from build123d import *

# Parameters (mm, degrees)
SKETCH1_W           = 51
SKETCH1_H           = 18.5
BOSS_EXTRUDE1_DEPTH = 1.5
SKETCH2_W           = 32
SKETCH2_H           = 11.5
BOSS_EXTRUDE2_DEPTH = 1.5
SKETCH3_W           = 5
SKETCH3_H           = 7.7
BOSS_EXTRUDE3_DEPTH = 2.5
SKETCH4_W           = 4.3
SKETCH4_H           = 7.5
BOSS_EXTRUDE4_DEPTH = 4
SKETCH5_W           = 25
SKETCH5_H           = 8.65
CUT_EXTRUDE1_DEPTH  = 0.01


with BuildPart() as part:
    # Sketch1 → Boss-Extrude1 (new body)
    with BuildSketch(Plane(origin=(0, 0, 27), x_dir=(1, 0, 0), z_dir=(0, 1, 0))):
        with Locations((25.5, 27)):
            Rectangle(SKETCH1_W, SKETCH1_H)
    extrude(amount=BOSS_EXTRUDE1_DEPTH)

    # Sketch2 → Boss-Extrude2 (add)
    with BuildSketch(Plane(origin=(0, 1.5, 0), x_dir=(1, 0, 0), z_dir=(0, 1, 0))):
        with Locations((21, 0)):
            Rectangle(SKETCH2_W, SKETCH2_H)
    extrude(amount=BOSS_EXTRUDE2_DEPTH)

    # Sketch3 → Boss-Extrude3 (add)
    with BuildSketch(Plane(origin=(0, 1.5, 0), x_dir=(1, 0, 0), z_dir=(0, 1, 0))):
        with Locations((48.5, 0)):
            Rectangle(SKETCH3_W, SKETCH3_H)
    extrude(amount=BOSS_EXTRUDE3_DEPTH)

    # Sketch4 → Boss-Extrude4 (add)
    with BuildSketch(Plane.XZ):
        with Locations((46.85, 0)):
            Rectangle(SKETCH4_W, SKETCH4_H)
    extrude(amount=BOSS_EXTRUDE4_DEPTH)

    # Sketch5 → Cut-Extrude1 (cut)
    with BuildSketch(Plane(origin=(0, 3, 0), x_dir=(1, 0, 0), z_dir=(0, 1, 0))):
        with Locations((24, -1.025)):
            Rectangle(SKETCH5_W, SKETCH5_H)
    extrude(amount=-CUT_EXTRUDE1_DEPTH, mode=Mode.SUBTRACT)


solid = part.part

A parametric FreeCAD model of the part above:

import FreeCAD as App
import Part
import Sketcher

doc = App.newDocument("Part")
body = doc.addObject("PartDesign::Body", "Body")

sketch1 = body.newObject("Sketcher::SketchObject", "Sketch")
sketch1.AttachmentSupport = (doc.getObject("XZ_Plane"), [""])
sketch1.MapMode = "FlatFace"
sketch1.addGeometry([
    Part.LineSegment(App.Vector(0, -9, 0), App.Vector(0, 9, 0)),
    Part.LineSegment(App.Vector(0, 9, 0), App.Vector(51, 9, 0)),
    Part.LineSegment(App.Vector(51, 9, 0), App.Vector(51, -9, 0)),
    Part.LineSegment(App.Vector(51, -9, 0), App.Vector(0, -9, 0)),
], False)
sketch1.addConstraint([
    Sketcher.Constraint("Coincident", 0, 2, 1, 1),
    Sketcher.Constraint("Coincident", 1, 2, 2, 1),
    Sketcher.Constraint("Coincident", 2, 2, 3, 1),
    Sketcher.Constraint("Coincident", 3, 2, 0, 1),
    Sketcher.Constraint("Vertical", 0),
    Sketcher.Constraint("Horizontal", 1),
    Sketcher.Constraint("Vertical", 2),
    Sketcher.Constraint("Horizontal", 3),
    Sketcher.Constraint("Symmetric", 0, 2, 3, 2, -1, 1),
    Sketcher.Constraint("DistanceX", 1, 1, 1, 2, 51.0),
    Sketcher.Constraint("DistanceY", 0, 1, 0, 2, 18.5),
])
pad1 = body.newObject("PartDesign::Pad", "Pad")
pad1.Profile = sketch1
pad1.Length = 1.5
pad1.Reversed = True

sketch2 = body.newObject("Sketcher::SketchObject", "Sketch001")
sketch2.AttachmentSupport = (doc.getObject("XZ_Plane"), [""])
sketch2.MapMode = "FlatFace"
sketch2.AttachmentOffset = App.Placement(App.Vector(0, 0, -1.5), App.Rotation())
sketch2.addGeometry([
    Part.LineSegment(App.Vector(5, -6, 0), App.Vector(5, 6, 0)),
    Part.LineSegment(App.Vector(5, 6, 0), App.Vector(37, 6, 0)),
    Part.LineSegment(App.Vector(37, 6, 0), App.Vector(37, -6, 0)),
    Part.LineSegment(App.Vector(37, -6, 0), App.Vector(5, -6, 0)),
], False)
sketch2.addConstraint([
    Sketcher.Constraint("Coincident", 0, 2, 1, 1),
    Sketcher.Constraint("Coincident", 1, 2, 2, 1),
    Sketcher.Constraint("Coincident", 2, 2, 3, 1),
    Sketcher.Constraint("Coincident", 3, 2, 0, 1),
    Sketcher.Constraint("Vertical", 0),
    Sketcher.Constraint("Horizontal", 1),
    Sketcher.Constraint("Vertical", 2),
    Sketcher.Constraint("Horizontal", 3),
    Sketcher.Constraint("DistanceX", 1, 1, 1, 2, 32.0),
    Sketcher.Constraint("DistanceY", 0, 1, 0, 2, 11.5),
    Sketcher.Constraint("DistanceX", -1, 1, 0, 2, 5.0),
    Sketcher.Constraint("DistanceY", -1, 1, 0, 2, 5.75),
])
pad2 = body.newObject("PartDesign::Pad", "Pad001")
pad2.Profile = sketch2
pad2.Length = 1.5
pad2.Reversed = True

sketch3 = body.newObject("Sketcher::SketchObject", "Sketch002")
sketch3.AttachmentSupport = (doc.getObject("XZ_Plane"), [""])
sketch3.MapMode = "FlatFace"
sketch3.AttachmentOffset = App.Placement(App.Vector(0, 0, -1.5), App.Rotation())
sketch3.addGeometry([
    Part.LineSegment(App.Vector(46, -4, 0), App.Vector(46, 4, 0)),
    Part.LineSegment(App.Vector(46, 4, 0), App.Vector(51, 4, 0)),
    Part.LineSegment(App.Vector(51, 4, 0), App.Vector(51, -4, 0)),
    Part.LineSegment(App.Vector(51, -4, 0), App.Vector(46, -4, 0)),
], False)
sketch3.addConstraint([
    Sketcher.Constraint("Coincident", 0, 2, 1, 1),
    Sketcher.Constraint("Coincident", 1, 2, 2, 1),
    Sketcher.Constraint("Coincident", 2, 2, 3, 1),
    Sketcher.Constraint("Coincident", 3, 2, 0, 1),
    Sketcher.Constraint("Vertical", 0),
    Sketcher.Constraint("Horizontal", 1),
    Sketcher.Constraint("Vertical", 2),
    Sketcher.Constraint("Horizontal", 3),
    Sketcher.Constraint("DistanceX", 1, 1, 1, 2, 5.0),
    Sketcher.Constraint("DistanceY", 0, 1, 0, 2, 7.7),
    Sketcher.Constraint("DistanceX", -1, 1, 0, 2, 46.0),
    Sketcher.Constraint("DistanceY", -1, 1, 0, 2, 3.85),
])
pad3 = body.newObject("PartDesign::Pad", "Pad002")
pad3.Profile = sketch3
pad3.Length = 2.5
pad3.Reversed = True

sketch4 = body.newObject("Sketcher::SketchObject", "Sketch003")
sketch4.AttachmentSupport = (doc.getObject("XZ_Plane"), [""])
sketch4.MapMode = "FlatFace"
sketch4.addGeometry([
    Part.LineSegment(App.Vector(44.7, 3.8, 0), App.Vector(44.7, -3.8, 0)),
    Part.LineSegment(App.Vector(44.7, -3.8, 0), App.Vector(49, -3.8, 0)),
    Part.LineSegment(App.Vector(49, -3.8, 0), App.Vector(49, 3.8, 0)),
    Part.LineSegment(App.Vector(49, 3.8, 0), App.Vector(44.7, 3.8, 0)),
], False)
sketch4.addConstraint([
    Sketcher.Constraint("Coincident", 0, 2, 1, 1),
    Sketcher.Constraint("Coincident", 1, 2, 2, 1),
    Sketcher.Constraint("Coincident", 2, 2, 3, 1),
    Sketcher.Constraint("Coincident", 3, 2, 0, 1),
    Sketcher.Constraint("Vertical", 0),
    Sketcher.Constraint("Horizontal", 1),
    Sketcher.Constraint("Vertical", 2),
    Sketcher.Constraint("Horizontal", 3),
    Sketcher.Constraint("DistanceX", 1, 1, 1, 2, 4.3),
    Sketcher.Constraint("DistanceY", 0, 2, 0, 1, 7.5),
    Sketcher.Constraint("DistanceX", -1, 1, 1, 2, 49.0),
    Sketcher.Constraint("DistanceY", 0, 2, -1, 1, 3.75),
])
pad4 = body.newObject("PartDesign::Pad", "Pad003")
pad4.Profile = sketch4
pad4.Length = 4

sketch5 = body.newObject("Sketcher::SketchObject", "Sketch004")
sketch5.AttachmentSupport = (doc.getObject("XZ_Plane"), [""])
sketch5.MapMode = "FlatFace"
sketch5.AttachmentOffset = App.Placement(App.Vector(0, 0, -3), App.Rotation())
sketch5.addGeometry([
    Part.LineSegment(App.Vector(12, -3, 0), App.Vector(12, 5, 0)),
    Part.LineSegment(App.Vector(12, 5, 0), App.Vector(36, 5, 0)),
    Part.LineSegment(App.Vector(36, 5, 0), App.Vector(36, -3, 0)),
    Part.LineSegment(App.Vector(36, -3, 0), App.Vector(12, -3, 0)),
], False)
sketch5.addConstraint([
    Sketcher.Constraint("Coincident", 0, 2, 1, 1),
    Sketcher.Constraint("Coincident", 1, 2, 2, 1),
    Sketcher.Constraint("Coincident", 2, 2, 3, 1),
    Sketcher.Constraint("Coincident", 3, 2, 0, 1),
    Sketcher.Constraint("Vertical", 0),
    Sketcher.Constraint("Horizontal", 1),
    Sketcher.Constraint("Vertical", 2),
    Sketcher.Constraint("Horizontal", 3),
    Sketcher.Constraint("DistanceX", 1, 1, 1, 2, 25.0),
    Sketcher.Constraint("DistanceY", 0, 1, 0, 2, 8.65),
    Sketcher.Constraint("DistanceX", -1, 1, 0, 2, 11.5),
    Sketcher.Constraint("DistanceY", 2, 2, -1, 1, 3.3),
])
pocket1 = body.newObject("PartDesign::Pocket", "Pocket")
pocket1.Profile = sketch5
pocket1.Length = 0.01
pocket1.Reversed = True

doc.recompute()
